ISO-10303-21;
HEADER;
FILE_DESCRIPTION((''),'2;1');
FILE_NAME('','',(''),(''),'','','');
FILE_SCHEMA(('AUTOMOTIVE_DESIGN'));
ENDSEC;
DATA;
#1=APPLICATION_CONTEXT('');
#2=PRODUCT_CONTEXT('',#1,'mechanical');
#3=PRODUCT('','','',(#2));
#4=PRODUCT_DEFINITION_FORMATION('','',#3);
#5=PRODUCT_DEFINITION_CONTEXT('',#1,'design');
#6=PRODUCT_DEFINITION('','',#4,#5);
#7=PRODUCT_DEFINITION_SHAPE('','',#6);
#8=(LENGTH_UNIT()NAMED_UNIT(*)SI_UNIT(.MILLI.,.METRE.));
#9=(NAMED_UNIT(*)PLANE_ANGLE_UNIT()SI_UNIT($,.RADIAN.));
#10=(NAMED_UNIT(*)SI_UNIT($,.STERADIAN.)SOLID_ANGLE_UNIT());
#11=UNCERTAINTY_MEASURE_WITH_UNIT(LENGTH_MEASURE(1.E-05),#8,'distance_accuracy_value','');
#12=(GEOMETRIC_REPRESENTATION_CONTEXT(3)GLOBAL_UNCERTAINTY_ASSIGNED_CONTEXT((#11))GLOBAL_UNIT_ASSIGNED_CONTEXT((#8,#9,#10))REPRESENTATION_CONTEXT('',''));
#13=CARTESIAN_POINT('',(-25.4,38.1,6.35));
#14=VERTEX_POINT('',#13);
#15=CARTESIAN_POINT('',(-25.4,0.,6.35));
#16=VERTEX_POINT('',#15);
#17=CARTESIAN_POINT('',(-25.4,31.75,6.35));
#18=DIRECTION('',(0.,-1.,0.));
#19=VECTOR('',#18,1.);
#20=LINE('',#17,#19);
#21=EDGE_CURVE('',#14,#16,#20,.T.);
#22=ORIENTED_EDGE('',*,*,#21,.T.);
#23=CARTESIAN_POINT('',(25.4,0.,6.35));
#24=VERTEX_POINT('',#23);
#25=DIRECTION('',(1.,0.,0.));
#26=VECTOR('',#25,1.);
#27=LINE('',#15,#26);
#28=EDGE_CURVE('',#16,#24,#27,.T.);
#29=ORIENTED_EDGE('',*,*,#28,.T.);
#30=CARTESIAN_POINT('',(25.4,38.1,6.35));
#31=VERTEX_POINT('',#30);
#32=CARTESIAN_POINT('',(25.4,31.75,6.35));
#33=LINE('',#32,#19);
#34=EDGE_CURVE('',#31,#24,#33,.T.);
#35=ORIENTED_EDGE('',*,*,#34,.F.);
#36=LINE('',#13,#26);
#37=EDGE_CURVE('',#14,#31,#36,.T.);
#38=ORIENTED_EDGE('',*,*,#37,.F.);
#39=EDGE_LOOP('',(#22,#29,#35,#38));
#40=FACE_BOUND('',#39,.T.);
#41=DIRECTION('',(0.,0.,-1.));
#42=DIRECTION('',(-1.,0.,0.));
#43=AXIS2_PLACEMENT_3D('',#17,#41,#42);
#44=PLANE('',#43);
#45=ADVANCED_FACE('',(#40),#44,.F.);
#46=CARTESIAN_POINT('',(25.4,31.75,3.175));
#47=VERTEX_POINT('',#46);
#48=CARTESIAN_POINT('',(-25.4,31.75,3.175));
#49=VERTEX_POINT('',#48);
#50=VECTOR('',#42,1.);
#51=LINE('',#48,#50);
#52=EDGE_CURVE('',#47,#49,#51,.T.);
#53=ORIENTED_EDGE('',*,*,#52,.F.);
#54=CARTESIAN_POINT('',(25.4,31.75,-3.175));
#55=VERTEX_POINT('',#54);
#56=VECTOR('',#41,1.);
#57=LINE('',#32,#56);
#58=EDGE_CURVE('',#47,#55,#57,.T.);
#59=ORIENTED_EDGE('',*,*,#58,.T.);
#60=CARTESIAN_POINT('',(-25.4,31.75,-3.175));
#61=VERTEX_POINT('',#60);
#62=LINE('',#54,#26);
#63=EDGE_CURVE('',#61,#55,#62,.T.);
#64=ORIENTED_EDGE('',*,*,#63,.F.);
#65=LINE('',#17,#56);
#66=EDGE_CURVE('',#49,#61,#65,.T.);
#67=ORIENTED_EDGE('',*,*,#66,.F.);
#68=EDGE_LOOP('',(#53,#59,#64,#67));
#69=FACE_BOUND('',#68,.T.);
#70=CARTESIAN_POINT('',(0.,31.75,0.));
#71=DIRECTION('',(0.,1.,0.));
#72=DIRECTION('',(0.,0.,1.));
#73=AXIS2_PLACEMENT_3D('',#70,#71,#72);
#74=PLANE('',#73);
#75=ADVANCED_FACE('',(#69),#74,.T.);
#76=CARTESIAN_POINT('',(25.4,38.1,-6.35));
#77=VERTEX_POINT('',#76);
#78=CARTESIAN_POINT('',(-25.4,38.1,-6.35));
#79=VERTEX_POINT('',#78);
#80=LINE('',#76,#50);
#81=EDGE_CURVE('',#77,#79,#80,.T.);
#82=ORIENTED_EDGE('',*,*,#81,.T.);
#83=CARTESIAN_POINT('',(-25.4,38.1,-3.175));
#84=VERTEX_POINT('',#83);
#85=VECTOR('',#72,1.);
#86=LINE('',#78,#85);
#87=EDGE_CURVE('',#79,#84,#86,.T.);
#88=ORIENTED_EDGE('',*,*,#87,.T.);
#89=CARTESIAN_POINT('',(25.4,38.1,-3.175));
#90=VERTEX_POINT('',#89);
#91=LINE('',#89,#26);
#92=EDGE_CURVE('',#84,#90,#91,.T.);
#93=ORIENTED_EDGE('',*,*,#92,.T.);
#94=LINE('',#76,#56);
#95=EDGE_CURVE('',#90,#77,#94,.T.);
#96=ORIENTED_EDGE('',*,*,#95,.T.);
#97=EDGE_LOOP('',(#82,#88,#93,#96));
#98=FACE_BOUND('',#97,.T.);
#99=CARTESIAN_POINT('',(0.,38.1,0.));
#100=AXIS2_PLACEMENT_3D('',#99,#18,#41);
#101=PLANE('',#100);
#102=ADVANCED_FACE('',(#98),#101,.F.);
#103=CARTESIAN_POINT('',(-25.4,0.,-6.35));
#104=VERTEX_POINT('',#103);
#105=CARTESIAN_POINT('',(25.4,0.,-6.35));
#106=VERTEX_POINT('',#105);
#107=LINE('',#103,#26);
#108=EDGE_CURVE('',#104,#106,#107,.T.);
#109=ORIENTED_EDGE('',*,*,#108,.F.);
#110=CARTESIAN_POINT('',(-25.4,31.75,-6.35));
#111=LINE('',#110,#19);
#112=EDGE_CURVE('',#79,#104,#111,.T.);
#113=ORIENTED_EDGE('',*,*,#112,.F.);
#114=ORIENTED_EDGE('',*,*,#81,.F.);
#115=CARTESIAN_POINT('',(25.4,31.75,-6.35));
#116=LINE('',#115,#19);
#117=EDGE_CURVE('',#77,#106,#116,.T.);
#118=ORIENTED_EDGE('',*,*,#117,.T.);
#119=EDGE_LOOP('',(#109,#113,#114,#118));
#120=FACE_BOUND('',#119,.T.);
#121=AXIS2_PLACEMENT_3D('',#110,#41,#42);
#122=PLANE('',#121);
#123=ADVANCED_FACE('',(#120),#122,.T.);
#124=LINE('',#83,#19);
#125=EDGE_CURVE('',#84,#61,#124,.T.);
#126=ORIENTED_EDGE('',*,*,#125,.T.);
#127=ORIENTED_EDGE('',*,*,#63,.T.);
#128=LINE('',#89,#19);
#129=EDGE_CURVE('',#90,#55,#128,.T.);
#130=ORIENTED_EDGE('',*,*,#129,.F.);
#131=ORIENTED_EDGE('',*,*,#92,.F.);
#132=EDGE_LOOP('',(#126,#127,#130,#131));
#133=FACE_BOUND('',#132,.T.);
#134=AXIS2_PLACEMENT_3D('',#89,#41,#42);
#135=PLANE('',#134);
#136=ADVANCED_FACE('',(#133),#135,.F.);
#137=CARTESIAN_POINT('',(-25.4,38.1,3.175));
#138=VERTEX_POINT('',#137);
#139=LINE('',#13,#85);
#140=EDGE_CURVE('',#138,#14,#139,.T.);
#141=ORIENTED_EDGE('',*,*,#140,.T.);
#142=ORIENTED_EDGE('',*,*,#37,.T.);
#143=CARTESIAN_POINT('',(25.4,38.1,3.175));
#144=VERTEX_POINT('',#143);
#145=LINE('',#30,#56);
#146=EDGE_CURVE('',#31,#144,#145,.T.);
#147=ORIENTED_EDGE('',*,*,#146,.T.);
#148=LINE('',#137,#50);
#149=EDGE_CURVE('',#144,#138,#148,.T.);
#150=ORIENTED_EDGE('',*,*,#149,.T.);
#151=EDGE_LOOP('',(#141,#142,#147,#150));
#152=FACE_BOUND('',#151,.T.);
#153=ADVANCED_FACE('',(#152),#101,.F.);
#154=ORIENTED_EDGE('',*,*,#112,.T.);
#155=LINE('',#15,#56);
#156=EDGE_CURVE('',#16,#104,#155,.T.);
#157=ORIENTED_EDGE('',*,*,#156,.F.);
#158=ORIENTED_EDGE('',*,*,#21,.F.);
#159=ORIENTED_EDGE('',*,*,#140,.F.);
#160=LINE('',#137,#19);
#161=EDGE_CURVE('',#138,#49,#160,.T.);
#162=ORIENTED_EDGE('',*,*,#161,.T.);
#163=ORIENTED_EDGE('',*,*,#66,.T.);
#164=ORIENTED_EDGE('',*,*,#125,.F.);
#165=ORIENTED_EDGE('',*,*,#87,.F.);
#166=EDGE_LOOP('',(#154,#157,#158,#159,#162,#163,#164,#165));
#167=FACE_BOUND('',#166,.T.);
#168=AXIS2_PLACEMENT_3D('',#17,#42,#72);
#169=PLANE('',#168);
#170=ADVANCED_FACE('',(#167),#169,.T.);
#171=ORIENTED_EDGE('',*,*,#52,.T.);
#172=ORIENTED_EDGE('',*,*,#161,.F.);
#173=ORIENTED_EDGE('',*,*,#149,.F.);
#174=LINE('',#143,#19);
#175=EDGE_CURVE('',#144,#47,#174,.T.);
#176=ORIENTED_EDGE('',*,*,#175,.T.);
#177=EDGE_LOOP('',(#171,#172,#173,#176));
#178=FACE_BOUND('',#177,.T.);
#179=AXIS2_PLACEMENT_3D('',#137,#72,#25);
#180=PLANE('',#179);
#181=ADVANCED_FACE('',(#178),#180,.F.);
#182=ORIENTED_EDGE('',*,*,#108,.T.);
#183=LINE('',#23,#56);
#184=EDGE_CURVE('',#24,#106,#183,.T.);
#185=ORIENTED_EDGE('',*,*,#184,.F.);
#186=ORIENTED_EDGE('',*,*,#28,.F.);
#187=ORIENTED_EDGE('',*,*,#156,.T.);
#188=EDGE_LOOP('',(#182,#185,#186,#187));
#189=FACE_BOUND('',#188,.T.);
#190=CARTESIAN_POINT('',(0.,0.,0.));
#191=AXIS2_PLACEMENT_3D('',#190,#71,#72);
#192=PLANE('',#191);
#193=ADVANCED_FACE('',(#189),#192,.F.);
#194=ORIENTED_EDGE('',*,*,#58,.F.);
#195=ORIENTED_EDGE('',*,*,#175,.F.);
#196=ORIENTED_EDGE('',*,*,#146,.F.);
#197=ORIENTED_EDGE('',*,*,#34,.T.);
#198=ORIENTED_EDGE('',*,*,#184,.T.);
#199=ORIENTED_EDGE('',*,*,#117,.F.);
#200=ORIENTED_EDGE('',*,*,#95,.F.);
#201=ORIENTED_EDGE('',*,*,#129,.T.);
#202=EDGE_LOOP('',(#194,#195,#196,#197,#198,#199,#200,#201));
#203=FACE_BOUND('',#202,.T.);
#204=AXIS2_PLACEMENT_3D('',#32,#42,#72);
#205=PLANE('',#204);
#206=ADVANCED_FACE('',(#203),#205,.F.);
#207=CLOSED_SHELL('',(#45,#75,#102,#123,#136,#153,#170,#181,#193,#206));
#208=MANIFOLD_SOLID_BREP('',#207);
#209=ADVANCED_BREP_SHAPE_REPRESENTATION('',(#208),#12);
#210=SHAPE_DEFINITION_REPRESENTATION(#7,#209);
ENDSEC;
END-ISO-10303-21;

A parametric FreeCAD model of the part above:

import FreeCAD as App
import Part
import Sketcher

V = App.Vector
Q = App.Units.Quantity

doc = App.newDocument("Part")
body = doc.addObject("PartDesign::Body", "Body")

# Sketch on XZ plane
sketch1 = body.newObject("Sketcher::SketchObject", "Sketch")
sketch1.AttachmentSupport = (doc.getObject("XZ_Plane"), [""])
sketch1.MapMode = "FlatFace"
sketch1.addGeometry([
    Part.LineSegment(V(-25, -6, 0), V(-25, 6, 0)),
    Part.LineSegment(V(-25, 6, 0), V(25, 6, 0)),
    Part.LineSegment(V(25, 6, 0), V(25, -6, 0)),
    Part.LineSegment(V(25, -6, 0), V(-25, -6, 0)),
], False)
sketch1.addConstraint([
    Sketcher.Constraint("Coincident", 0, 2, 1, 1),
    Sketcher.Constraint("Coincident", 1, 2, 2, 1),
    Sketcher.Constraint("Coincident", 2, 2, 3, 1),
    Sketcher.Constraint("Coincident", 3, 2, 0, 1),
    Sketcher.Constraint("Vertical", 0),
    Sketcher.Constraint("Horizontal", 1),
    Sketcher.Constraint("Vertical", 2),
    Sketcher.Constraint("Horizontal", 3),
    Sketcher.Constraint("Symmetric", 0, 2, 2, 2, -1, 1),
    Sketcher.Constraint("DistanceX", 1, 1, 1, 2, Q("2 in")),
    Sketcher.Constraint("DistanceY", 0, 1, 0, 2, Q("0.5 in")),
])
pad1 = body.newObject("PartDesign::Pad", "Pad")
pad1.Profile = sketch1
pad1.Length = Q("1.25 in")
pad1.Reversed = True

# Sketch on XZ plane
sketch2 = body.newObject("Sketcher::SketchObject", "Sketch001")
sketch2.AttachmentSupport = (doc.getObject("XZ_Plane"), [""])
sketch2.MapMode = "FlatFace"
sketch2.AttachmentOffset = App.Placement(V(0, 0, -1.25 * 25.4), App.Rotation())
sketch2.addGeometry([
    Part.LineSegment(V(-25.4, 3.2, 0), V(-25.4, 6.3, 0)),  # 0
    Part.LineSegment(V(-25.4, 6.3, 0), V(25.4, 6.3, 0)),  # 1
    Part.LineSegment(V(25.4, 6.3, 0), V(25.4, 3.2, 0)),  # 2
    Part.LineSegment(V(25.4, 3.2, 0), V(-25.4, 3.2, 0)),  # 3
    Part.LineSegment(V(-25.4, -6.3, 0), V(-25.4, -3.2, 0)),  # 4
    Part.LineSegment(V(-25.4, -3.2, 0), V(25.4, -3.2, 0)),  # 5
    Part.LineSegment(V(25.4, -3.2, 0), V(25.4, -6.3, 0)),  # 6
    Part.LineSegment(V(25.4, -6.3, 0), V(-25.4, -6.3, 0)),  # 7
], False)
sketch2.addConstraint([
    Sketcher.Constraint("Coincident", 0, 2, 1, 1),
    Sketcher.Constraint("Coincident", 1, 2, 2, 1),
    Sketcher.Constraint("Coincident", 2, 2, 3, 1),
    Sketcher.Constraint("Coincident", 3, 2, 0, 1),
    Sketcher.Constraint("Coincident", 4, 2, 5, 1),
    Sketcher.Constraint("Coincident", 5, 2, 6, 1),
    Sketcher.Constraint("Coincident", 6, 2, 7, 1),
    Sketcher.Constraint("Coincident", 7, 2, 4, 1),
    Sketcher.Constraint("Vertical", 0),
    Sketcher.Constraint("Horizontal", 1),
    Sketcher.Constraint("Vertical", 2),
    Sketcher.Constraint("Horizontal", 3),
    Sketcher.Constraint("Vertical", 4),
    Sketcher.Constraint("Horizontal", 5),
    Sketcher.Constraint("Vertical", 6),
    Sketcher.Constraint("Horizontal", 7),
    Sketcher.Constraint("Symmetric", 2, 2, 4, 2, -1, 1),
    Sketcher.Constraint("Symmetric", 0, 2, 6, 2, -1, 1),
    Sketcher.Constraint("Vertical", 3, 2, 4, 2),
    Sketcher.Constraint("DistanceX", 1, 1, 1, 2, Q("2 in")),
    Sketcher.Constraint("DistanceY", 6, 2, 1, 2, Q("0.5 in")),
    Sketcher.Constraint("DistanceY", 0, 1, 0, 2, Q("0.125 in")),
])
pad2 = body.newObject("PartDesign::Pad", "Pad001")
pad2.Profile = sketch2
pad2.Length = Q("0.25 in")
pad2.Reversed = True

doc.recompute()
